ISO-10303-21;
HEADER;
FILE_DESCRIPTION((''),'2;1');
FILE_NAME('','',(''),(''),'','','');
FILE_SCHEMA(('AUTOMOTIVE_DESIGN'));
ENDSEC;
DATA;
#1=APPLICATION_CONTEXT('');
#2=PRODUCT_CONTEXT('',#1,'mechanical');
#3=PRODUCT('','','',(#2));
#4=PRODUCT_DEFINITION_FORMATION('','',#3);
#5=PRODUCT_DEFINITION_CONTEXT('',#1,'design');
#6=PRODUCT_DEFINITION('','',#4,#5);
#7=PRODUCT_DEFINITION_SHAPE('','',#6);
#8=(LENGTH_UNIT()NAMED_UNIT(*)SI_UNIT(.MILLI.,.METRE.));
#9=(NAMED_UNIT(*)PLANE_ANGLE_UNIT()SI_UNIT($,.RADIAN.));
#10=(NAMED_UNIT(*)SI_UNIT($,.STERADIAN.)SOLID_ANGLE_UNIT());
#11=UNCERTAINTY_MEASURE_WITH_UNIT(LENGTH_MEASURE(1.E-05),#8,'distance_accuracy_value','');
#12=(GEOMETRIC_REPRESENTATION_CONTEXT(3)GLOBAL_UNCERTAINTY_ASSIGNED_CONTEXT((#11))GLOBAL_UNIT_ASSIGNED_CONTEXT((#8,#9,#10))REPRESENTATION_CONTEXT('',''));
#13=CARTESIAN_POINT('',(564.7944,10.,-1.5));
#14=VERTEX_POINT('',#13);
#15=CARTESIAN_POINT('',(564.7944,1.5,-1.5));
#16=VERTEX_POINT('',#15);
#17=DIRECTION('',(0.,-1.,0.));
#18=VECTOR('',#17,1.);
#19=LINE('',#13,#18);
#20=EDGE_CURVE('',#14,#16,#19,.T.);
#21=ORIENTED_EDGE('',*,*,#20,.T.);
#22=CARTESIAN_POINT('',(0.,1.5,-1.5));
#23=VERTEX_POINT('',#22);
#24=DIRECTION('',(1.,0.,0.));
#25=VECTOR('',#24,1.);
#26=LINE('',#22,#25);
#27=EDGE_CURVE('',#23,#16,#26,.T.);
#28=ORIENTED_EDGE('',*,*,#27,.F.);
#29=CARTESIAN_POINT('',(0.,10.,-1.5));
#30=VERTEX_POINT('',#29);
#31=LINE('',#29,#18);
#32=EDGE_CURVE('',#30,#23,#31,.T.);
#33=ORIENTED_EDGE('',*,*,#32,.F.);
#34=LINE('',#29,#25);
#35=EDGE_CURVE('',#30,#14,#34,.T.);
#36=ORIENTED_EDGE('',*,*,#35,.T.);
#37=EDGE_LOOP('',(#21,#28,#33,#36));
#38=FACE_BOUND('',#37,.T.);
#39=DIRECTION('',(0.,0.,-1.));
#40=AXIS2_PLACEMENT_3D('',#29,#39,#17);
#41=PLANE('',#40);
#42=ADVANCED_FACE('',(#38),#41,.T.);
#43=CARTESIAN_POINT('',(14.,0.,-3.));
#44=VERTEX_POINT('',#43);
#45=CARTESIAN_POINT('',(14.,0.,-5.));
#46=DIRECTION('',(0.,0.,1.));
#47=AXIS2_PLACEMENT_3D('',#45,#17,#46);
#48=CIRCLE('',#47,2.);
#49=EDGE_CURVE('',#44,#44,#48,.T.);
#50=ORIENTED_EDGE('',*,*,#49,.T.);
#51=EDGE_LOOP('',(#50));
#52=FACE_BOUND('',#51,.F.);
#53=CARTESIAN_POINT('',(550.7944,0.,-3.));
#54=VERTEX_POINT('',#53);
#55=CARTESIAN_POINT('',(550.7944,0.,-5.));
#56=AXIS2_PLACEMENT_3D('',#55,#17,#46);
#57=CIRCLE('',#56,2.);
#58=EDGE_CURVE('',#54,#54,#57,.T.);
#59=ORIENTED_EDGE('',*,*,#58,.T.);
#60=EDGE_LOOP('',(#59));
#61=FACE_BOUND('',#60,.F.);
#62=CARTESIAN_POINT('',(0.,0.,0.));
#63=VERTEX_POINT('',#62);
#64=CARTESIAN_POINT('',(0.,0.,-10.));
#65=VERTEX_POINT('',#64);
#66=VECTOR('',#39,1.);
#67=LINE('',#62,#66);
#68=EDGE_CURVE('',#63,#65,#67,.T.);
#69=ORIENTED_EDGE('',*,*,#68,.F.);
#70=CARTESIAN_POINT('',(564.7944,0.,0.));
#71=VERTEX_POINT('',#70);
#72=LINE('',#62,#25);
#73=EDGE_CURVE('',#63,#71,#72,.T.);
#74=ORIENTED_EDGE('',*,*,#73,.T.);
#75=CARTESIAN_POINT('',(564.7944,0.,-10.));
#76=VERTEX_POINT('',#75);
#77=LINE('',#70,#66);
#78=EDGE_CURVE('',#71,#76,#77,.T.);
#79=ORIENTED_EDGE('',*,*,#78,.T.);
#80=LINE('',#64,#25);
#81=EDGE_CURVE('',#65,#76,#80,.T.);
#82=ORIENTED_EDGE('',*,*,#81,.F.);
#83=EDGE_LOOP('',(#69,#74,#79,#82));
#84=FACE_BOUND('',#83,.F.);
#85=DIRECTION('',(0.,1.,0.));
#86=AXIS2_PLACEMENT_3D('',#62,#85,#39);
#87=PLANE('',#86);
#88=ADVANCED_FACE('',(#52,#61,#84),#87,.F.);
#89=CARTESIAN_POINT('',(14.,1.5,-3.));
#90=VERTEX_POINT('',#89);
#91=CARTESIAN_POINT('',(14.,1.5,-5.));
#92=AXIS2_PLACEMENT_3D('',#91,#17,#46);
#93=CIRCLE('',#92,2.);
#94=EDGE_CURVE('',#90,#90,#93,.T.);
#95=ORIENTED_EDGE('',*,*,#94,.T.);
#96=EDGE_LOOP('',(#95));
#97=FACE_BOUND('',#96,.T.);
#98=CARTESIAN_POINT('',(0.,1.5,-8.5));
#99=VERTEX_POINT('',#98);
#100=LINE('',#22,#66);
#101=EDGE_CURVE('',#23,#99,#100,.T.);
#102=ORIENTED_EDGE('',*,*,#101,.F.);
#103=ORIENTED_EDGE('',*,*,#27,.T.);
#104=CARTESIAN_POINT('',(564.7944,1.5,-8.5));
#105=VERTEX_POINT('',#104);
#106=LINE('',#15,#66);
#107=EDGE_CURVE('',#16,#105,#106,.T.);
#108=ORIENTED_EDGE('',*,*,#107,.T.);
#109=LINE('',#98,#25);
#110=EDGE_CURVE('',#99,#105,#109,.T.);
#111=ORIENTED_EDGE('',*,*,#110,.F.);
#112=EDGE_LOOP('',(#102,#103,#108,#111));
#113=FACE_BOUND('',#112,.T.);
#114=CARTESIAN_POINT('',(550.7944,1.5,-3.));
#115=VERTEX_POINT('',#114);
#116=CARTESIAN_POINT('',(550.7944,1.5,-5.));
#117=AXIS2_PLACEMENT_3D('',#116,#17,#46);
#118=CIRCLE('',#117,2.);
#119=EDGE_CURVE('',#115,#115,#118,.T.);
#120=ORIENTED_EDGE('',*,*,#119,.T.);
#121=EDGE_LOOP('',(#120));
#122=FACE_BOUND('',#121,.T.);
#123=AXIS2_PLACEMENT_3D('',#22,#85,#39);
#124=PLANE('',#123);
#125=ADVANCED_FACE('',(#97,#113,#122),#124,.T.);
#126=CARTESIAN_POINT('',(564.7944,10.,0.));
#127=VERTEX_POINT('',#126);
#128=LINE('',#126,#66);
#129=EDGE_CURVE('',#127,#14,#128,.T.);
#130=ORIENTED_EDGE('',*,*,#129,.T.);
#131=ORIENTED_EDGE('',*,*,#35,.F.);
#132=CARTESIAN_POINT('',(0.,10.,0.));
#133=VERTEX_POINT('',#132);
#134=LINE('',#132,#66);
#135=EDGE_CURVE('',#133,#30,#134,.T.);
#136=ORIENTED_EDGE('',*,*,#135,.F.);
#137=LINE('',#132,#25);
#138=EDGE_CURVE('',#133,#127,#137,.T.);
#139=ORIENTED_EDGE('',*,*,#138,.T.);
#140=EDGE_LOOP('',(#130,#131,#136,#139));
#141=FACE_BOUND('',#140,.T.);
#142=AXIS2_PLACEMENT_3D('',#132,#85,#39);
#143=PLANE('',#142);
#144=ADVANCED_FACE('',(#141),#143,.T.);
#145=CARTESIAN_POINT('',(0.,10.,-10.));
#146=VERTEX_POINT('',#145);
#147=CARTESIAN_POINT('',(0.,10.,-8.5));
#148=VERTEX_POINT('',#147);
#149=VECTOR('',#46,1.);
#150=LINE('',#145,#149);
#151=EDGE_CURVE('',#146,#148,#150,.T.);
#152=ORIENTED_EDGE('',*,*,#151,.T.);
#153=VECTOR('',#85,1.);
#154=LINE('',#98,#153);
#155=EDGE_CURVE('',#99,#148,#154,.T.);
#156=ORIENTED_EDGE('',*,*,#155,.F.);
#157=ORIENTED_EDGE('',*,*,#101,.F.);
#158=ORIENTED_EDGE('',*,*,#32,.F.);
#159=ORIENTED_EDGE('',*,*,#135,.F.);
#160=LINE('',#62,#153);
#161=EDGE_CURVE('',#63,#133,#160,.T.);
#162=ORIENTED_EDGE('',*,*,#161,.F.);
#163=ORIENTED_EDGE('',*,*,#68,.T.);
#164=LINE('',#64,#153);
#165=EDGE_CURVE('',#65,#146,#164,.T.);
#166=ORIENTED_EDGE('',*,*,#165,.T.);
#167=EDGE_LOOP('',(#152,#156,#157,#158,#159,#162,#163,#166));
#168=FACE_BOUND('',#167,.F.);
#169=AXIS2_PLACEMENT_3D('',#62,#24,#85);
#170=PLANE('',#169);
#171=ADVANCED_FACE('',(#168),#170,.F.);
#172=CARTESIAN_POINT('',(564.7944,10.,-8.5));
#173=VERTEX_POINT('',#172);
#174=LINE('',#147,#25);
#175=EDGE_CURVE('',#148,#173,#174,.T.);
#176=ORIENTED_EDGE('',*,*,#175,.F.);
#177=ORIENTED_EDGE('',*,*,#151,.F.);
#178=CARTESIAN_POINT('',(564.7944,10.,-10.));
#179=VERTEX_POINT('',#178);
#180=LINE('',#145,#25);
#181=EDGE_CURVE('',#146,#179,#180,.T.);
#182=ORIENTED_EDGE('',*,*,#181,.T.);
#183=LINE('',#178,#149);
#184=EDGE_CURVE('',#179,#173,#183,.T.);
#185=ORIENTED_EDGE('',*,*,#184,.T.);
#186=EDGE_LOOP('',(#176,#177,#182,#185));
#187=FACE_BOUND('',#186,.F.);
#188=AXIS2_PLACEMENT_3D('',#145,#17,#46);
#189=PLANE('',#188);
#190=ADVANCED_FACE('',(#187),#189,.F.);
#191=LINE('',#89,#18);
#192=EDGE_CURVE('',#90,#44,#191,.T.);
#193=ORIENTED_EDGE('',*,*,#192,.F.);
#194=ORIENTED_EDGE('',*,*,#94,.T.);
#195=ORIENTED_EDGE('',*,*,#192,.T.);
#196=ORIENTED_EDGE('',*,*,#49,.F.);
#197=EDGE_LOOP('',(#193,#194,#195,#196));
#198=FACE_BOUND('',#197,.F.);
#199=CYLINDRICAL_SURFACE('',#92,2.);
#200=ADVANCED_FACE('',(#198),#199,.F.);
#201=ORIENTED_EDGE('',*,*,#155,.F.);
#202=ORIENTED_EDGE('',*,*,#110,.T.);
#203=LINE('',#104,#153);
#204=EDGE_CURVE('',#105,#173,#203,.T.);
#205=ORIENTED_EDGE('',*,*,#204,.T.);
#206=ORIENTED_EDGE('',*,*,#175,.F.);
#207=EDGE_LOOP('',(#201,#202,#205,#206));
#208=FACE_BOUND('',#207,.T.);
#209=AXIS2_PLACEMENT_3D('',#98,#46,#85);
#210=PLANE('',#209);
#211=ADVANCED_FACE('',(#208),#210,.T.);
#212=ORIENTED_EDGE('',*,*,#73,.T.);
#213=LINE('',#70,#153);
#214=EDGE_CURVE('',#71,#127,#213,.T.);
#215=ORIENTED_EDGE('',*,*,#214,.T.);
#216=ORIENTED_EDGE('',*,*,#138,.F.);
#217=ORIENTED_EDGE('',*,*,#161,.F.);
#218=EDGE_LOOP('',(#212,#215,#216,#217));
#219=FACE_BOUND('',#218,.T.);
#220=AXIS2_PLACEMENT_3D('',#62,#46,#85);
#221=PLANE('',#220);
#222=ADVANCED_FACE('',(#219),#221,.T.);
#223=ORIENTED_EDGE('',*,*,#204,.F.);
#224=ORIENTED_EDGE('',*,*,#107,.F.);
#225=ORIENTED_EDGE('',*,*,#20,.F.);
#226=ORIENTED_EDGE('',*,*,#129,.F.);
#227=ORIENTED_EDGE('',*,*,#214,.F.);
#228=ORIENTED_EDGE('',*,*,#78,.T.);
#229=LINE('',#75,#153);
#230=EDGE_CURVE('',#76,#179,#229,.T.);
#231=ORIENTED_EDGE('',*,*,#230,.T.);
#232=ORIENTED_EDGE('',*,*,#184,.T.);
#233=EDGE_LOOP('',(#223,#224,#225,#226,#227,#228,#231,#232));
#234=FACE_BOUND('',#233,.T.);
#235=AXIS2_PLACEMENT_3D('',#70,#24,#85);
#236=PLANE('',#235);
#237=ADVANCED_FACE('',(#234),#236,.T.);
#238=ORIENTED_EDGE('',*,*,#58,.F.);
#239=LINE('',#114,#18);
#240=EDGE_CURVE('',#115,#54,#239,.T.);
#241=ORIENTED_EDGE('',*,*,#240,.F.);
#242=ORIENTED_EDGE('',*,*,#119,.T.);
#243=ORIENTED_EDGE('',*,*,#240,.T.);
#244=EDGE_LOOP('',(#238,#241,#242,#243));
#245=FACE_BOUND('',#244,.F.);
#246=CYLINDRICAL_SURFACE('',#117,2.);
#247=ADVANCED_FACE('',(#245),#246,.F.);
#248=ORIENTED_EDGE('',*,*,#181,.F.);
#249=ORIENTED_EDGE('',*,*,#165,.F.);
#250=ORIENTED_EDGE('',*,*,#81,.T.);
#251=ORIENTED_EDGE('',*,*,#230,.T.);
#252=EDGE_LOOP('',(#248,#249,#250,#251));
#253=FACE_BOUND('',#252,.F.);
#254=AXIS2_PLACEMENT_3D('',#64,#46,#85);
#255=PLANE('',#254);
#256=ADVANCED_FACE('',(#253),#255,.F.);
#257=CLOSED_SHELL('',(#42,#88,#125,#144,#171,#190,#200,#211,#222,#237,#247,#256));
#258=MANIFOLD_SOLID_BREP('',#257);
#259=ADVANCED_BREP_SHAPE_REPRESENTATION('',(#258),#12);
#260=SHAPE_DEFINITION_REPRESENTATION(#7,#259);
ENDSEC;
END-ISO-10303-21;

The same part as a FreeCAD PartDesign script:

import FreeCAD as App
import Part
import Sketcher
Q = App.Units.Quantity

doc = App.newDocument("Part")
params = doc.addObject("Spreadsheet::Sheet", "Params")
for row, (alias, value) in enumerate([
    ("sketch1_width", "10 mm"),
    ("sketch1_height", "1.5 mm"),
    ("pad1_length", "564.7944 mm"),
    ("sketch2_diameter", "4 mm"),
    ("hole_diameter", "4 mm"),
], start=1):
    params.set(f"A{row}", alias)
    params.set(f"B{row}", "=" + value)
    params.setAlias(f"B{row}", alias)

body = doc.addObject("PartDesign::Body", "Body")

# Sketch on YZ plane
sketch1 = doc.addObject("Sketcher::SketchObject", "Sketch")
body.addObject(sketch1)
sketch1.AttachmentSupport = (doc.YZ_Plane, [""])
sketch1.MapMode = "FlatFace"
sketch1.addGeometry([
    Part.LineSegment(App.Vector(10, 0, 0), App.Vector(0, 0, 0)),  # 0
    Part.LineSegment(App.Vector(0, 0, 0), App.Vector(0, -10, 0)),  # 1
    Part.LineSegment(App.Vector(0, -10, 0), App.Vector(10, -10, 0)),  # 2
    Part.LineSegment(App.Vector(10, -10, 0), App.Vector(10, -8.5, 0)),  # 3
    Part.LineSegment(App.Vector(10, -8.5, 0), App.Vector(1.5, -8.5, 0)),  # 4
    Part.LineSegment(App.Vector(1.5, -8.5, 0), App.Vector(1.5, -1.5, 0)),  # 5
    Part.LineSegment(App.Vector(1.5, -1.5, 0), App.Vector(10, -1.5, 0)),  # 6
    Part.LineSegment(App.Vector(10, -1.5, 0), App.Vector(10, 0, 0)),  # 7
], False)
sketch1.addConstraint([
    Sketcher.Constraint("Coincident", 0, 2, 1, 1),
    Sketcher.Constraint("Coincident", 1, 2, 2, 1),
    Sketcher.Constraint("Coincident", 2, 2, 3, 1),
    Sketcher.Constraint("Coincident", 3, 2, 4, 1),
    Sketcher.Constraint("Coincident", 4, 2, 5, 1),
    Sketcher.Constraint("Coincident", 5, 2, 6, 1),
    Sketcher.Constraint("Coincident", 6, 2, 7, 1),
    Sketcher.Constraint("Coincident", 7, 2, 0, 1),
    Sketcher.Constraint("Horizontal", 0),
    Sketcher.Constraint("Vertical", 1),
    Sketcher.Constraint("Horizontal", 2),
    Sketcher.Constraint("Vertical", 3),
    Sketcher.Constraint("Horizontal", 4),
    Sketcher.Constraint("Vertical", 5),
    Sketcher.Constraint("Horizontal", 6),
    Sketcher.Constraint("Vertical", 7),
    Sketcher.Constraint("Coincident", 0, 2, -1, 1),
    Sketcher.Constraint("Vertical", 3, 2, 6, 2),
    Sketcher.Constraint("Equal", 2, 1),
    Sketcher.Constraint("Equal", 3, 7),
    Sketcher.Constraint("DistanceX", 0, 2, 0, 1, Q("10 mm")),
    Sketcher.Constraint("DistanceY", 3, 1, 3, 2, Q("1.5 mm")),
    Sketcher.Constraint("DistanceX", -1, 1, 4, 2, Q("1.5 mm")),
])
sketch1.setExpression("Constraints[20]", "Params.sketch1_width")
sketch1.setExpression("Constraints[21]", "Params.sketch1_height")
pad1 = doc.addObject("PartDesign::Pad", "Pad")
body.addObject(pad1)
pad1.Profile = sketch1
pad1.setExpression("Length", "Params.pad1_length")

# Sketch on XZ plane
sketch2 = doc.addObject("Sketcher::SketchObject", "Sketch001")
body.addObject(sketch2)
sketch2.AttachmentSupport = (doc.XZ_Plane, [""])
sketch2.MapMode = "FlatFace"
sketch2.AttachmentOffset = App.Placement(App.Vector(0, 0, -1.5), App.Rotation())
sketch2.addGeometry([
    Part.Circle(App.Vector(550.8, -5, 0), App.Vector(0, 0, 1), 2),
    Part.Circle(App.Vector(14, -5, 0), App.Vector(0, 0, 1), 2),
], False)
sketch2.addConstraint([
    Sketcher.Constraint("Equal", 0, 1),
    Sketcher.Constraint("Horizontal", 0, 3, 1, 3),
    Sketcher.Constraint("Diameter", 0, Q("4 mm")),
    Sketcher.Constraint("DistanceY", 0, 3, -1, 1, Q("5 mm")),
    Sketcher.Constraint("DistanceX", -1, 1, 1, 3, Q("14 mm")),
    Sketcher.Constraint("DistanceX", -1, 1, 0, 3, Q("550.7944 mm")),
])
sketch2.setExpression("Constraints[2]", "Params.sketch2_diameter")
doc.recompute()
hole = doc.addObject("PartDesign::Hole", "Hole")
body.addObject(hole)
hole.Profile = sketch2
hole.ThreadType = "None"
hole.setExpression("Diameter", "Params.hole_diameter")
hole.DepthType = "ThroughAll"
hole.Reversed = True

doc.recompute()
